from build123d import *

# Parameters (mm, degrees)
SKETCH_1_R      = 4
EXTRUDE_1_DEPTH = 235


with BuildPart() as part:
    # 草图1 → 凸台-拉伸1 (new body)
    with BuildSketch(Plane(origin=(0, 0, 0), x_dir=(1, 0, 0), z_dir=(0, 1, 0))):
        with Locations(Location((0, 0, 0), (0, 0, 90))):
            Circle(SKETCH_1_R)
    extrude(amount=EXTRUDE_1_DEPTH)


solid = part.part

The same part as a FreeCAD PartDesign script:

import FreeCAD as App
import Part
import Sketcher

doc = App.newDocument("Part")
body = doc.addObject("PartDesign::Body", "Body")

sketch1 = doc.addObject("Sketcher::SketchObject", "Sketch")
body.addObject(sketch1)
sketch1.AttachmentSupport = (doc.XZ_Plane, [""])
sketch1.MapMode = "FlatFace"
sketch1.addGeometry(Part.Circle(App.Vector(0, 0, 0), App.Vector(0, 0, 1), 4), False)
sketch1.addConstraint(Sketcher.Constraint("Coincident", 0, 3, -1, 1))
sketch1.addConstraint(Sketcher.Constraint("Diameter", 0, 8.0))
pad1 = doc.addObject("PartDesign::Pad", "Pad")
body.addObject(pad1)
pad1.Profile = sketch1
pad1.Length = 235
pad1.Reversed = True

doc.recompute()
